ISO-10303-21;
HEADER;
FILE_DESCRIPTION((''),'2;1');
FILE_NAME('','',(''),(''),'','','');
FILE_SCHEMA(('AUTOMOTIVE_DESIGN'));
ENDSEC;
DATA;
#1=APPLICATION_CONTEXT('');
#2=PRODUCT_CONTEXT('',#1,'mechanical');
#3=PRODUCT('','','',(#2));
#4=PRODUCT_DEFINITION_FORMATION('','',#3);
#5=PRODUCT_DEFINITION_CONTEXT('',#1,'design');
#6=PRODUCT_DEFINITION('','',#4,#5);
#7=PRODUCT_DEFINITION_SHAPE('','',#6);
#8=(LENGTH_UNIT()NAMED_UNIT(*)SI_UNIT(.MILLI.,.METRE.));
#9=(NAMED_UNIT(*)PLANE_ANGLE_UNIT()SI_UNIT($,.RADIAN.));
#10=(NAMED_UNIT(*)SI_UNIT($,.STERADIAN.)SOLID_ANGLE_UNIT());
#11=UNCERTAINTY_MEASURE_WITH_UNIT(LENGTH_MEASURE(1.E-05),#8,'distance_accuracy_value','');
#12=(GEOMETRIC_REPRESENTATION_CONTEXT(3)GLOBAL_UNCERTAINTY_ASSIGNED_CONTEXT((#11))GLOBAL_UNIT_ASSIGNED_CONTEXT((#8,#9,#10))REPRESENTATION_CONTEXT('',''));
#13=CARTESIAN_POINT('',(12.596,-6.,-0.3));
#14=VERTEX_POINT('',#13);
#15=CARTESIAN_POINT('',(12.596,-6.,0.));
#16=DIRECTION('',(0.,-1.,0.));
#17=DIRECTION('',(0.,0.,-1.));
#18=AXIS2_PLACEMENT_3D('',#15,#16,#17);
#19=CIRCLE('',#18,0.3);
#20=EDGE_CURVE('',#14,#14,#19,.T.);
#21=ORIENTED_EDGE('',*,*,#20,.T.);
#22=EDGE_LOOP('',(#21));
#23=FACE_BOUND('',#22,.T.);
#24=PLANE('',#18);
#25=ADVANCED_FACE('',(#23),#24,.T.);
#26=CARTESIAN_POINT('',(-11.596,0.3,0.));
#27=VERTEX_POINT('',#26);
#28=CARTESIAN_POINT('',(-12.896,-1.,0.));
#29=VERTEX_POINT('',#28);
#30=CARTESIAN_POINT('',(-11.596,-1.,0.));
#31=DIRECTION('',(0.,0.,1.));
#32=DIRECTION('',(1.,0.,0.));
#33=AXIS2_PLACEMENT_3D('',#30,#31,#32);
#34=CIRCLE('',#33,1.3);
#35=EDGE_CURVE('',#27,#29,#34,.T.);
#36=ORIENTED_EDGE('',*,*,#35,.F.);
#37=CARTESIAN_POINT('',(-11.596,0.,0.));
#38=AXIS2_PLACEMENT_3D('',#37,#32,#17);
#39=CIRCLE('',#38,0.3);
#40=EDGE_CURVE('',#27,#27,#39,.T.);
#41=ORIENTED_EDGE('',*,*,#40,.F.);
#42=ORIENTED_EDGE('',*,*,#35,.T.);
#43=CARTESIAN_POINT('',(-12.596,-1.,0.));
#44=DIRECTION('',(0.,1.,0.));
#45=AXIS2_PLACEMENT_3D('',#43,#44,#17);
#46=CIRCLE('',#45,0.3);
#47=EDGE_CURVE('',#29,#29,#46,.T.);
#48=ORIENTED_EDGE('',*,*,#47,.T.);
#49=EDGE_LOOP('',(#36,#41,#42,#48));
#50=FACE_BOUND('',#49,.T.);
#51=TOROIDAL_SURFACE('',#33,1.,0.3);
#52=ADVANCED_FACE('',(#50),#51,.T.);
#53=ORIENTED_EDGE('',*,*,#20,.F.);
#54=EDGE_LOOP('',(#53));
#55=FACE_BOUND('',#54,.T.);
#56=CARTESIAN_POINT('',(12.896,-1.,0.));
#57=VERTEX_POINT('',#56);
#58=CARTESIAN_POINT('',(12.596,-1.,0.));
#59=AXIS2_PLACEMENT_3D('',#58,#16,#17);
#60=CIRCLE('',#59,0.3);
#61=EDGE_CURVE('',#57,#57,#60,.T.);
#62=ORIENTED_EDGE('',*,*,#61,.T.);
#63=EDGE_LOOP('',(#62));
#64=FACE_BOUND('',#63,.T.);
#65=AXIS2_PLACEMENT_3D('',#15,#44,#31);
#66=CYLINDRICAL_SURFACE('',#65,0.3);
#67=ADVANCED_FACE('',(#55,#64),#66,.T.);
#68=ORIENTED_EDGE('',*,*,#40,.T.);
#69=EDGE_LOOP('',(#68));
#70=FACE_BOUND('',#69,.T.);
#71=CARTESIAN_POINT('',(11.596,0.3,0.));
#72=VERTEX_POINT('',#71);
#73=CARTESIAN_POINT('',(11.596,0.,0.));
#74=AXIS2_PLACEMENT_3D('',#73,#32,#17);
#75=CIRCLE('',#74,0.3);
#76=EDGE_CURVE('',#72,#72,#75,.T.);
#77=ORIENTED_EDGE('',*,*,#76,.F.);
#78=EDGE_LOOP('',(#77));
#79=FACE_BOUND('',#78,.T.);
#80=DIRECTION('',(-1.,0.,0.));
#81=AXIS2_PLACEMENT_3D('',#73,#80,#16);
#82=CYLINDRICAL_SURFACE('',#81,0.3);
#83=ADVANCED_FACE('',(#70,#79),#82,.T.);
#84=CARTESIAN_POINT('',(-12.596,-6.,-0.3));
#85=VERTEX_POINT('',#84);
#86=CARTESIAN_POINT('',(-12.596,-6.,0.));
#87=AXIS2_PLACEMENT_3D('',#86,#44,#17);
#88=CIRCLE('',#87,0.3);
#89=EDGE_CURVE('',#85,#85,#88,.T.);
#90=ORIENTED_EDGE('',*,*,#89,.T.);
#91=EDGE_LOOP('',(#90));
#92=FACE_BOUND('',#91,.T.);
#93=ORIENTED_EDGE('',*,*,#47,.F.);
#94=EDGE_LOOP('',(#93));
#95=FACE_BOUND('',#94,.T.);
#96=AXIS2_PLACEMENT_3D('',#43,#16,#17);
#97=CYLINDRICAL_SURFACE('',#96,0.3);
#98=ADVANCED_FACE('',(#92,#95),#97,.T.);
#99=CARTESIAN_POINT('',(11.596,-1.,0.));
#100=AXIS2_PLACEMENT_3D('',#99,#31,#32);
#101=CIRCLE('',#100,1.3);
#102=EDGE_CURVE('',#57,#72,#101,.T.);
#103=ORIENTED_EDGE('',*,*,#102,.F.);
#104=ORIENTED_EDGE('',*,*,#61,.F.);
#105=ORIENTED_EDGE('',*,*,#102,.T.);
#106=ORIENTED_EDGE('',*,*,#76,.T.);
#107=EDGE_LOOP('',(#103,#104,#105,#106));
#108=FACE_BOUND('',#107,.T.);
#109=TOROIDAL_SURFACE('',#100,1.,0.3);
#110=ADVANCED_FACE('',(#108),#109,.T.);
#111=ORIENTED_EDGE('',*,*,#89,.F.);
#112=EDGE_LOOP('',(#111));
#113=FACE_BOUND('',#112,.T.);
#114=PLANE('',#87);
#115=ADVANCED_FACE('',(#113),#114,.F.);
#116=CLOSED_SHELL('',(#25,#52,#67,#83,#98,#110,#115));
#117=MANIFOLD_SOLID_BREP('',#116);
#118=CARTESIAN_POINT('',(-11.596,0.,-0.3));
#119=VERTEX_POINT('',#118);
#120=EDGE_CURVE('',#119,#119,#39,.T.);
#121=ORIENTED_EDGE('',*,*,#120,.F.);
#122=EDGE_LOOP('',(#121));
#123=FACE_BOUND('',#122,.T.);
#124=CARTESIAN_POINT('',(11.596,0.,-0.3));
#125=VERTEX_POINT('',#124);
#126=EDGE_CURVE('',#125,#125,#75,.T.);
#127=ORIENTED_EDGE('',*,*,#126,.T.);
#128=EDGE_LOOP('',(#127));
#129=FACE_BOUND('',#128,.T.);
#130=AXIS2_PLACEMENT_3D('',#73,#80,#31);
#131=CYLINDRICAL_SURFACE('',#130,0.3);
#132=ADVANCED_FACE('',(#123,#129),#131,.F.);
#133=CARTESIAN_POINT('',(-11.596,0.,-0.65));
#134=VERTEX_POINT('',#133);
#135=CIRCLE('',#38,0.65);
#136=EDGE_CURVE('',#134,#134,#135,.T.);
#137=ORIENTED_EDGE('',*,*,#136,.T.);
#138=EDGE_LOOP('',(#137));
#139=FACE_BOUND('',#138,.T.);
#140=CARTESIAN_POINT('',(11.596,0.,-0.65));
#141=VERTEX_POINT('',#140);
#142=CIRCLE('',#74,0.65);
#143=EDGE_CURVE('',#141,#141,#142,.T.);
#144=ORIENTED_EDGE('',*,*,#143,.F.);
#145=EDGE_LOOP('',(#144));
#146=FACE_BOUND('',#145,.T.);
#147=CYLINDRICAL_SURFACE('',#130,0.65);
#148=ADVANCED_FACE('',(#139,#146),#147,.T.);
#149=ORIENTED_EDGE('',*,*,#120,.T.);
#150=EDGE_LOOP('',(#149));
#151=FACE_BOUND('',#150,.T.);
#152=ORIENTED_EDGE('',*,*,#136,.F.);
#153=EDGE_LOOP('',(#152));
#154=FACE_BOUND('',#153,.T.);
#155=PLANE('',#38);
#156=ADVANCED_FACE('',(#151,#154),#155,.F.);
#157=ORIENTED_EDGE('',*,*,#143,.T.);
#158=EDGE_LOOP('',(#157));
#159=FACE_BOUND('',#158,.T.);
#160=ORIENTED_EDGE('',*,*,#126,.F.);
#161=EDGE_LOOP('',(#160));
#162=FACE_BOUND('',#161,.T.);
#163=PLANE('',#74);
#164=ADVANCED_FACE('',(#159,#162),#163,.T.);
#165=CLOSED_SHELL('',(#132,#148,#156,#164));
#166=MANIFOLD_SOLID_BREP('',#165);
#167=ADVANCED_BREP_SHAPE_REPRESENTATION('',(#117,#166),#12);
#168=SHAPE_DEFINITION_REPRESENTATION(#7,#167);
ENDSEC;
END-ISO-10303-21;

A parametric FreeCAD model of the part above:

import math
import FreeCAD as App
import Part
import Sketcher

doc = App.newDocument("Part")
body = doc.addObject("PartDesign::Body", "Body")

# Sketch on YZ plane
sketch1 = body.newObject("Sketcher::SketchObject", "Sketch")
sketch1.AttachmentSupport = (doc.getObject("YZ_Plane"), [""])
sketch1.MapMode = "FlatFace"
sketch1.addGeometry(Part.Circle(App.Vector(0, 0, 0), App.Vector(0, 0, 1), 0.3), False)
sketch1.addConstraint([
    Sketcher.Constraint("Coincident", 0, 3, -1, 1),
    Sketcher.Constraint("Diameter", 0, 0.6),
])

# Sketch on XY plane
sketch2 = body.newObject("Sketcher::SketchObject", "Sketch001")
sketch2.AttachmentSupport = (doc.getObject("XY_Plane"), [""])
sketch2.MapMode = "FlatFace"
sketch2.addGeometry([
    Part.LineSegment(App.Vector(-12.6, -6, 0), App.Vector(-12.6, -1, 0)),  # 0
    Part.ArcOfCircle(Part.Circle(App.Vector(-11.6, -1, 0), App.Vector(0, 0, 1), 1), math.radians(90), math.radians(180)),  # 1
    Part.LineSegment(App.Vector(-11.6, 0, 0), App.Vector(11.6, 0, 0)),  # 2
    Part.ArcOfCircle(Part.Circle(App.Vector(11.6, -1, 0), App.Vector(0, 0, 1), 1), math.radians(0), math.radians(90)),  # 3
    Part.LineSegment(App.Vector(12.6, -1, 0), App.Vector(12.6, -6, 0)),  # 4
], False)
sketch2.addConstraint([
    Sketcher.Constraint("Tangent", 0, 2, 1, 2),
    Sketcher.Constraint("Tangent", 1, 1, 2, 1),
    Sketcher.Constraint("Tangent", 2, 2, 3, 2),
    Sketcher.Constraint("Tangent", 3, 1, 4, 1),
    Sketcher.Constraint("Vertical", 0),
    Sketcher.Constraint("Horizontal", 2),
    Sketcher.Constraint("Vertical", 4),
    Sketcher.Constraint("Equal", 1, 3),
    Sketcher.Constraint("Symmetric", 1, 1, 2, 2, -1, 1),
    Sketcher.Constraint("Horizontal", 0, 1, 4, 2),
    Sketcher.Constraint("Radius", 1, 1.0),
    Sketcher.Constraint("DistanceY", 0, 1, 0, 2, 5.0),
    Sketcher.Constraint("DistanceX", 2, 1, 2, 2, 23.192),
])
doc.recompute()

additivepipe = body.newObject("PartDesign::AdditivePipe", "AdditivePipe")
additivepipe.Profile = sketch1
additivepipe.Spine = (sketch2, ["Edge1", "Edge2", "Edge3", "Edge4", "Edge5"])
body2 = doc.addObject("PartDesign::Body", "Body001")

# Sketch on YZ plane
sketch3 = body2.newObject("Sketcher::SketchObject", "Sketch002")
sketch3.AttachmentSupport = (doc.getObject("YZ_Plane001"), [""])
sketch3.MapMode = "FlatFace"
sketch3.addGeometry([
    Part.Circle(App.Vector(0, 0, 0), App.Vector(0, 0, 1), 0.65),
    Part.Circle(App.Vector(0, 0, 0), App.Vector(0, 0, 1), 0.3),
], False)
sketch3.addConstraint([
    Sketcher.Constraint("Coincident", 0, 3, -1, 1),
    Sketcher.Constraint("Coincident", 1, 3, -1, 1),
    Sketcher.Constraint("Diameter", 0, 1.3),
    Sketcher.Constraint("Diameter", 1, 0.6),
])
pad1 = body2.newObject("PartDesign::Pad", "Pad")
pad1.Profile = sketch3
pad1.Type = "TwoLengths"
pad1.Length = 11.596
pad1.Length2 = 11.596

doc.recompute()
